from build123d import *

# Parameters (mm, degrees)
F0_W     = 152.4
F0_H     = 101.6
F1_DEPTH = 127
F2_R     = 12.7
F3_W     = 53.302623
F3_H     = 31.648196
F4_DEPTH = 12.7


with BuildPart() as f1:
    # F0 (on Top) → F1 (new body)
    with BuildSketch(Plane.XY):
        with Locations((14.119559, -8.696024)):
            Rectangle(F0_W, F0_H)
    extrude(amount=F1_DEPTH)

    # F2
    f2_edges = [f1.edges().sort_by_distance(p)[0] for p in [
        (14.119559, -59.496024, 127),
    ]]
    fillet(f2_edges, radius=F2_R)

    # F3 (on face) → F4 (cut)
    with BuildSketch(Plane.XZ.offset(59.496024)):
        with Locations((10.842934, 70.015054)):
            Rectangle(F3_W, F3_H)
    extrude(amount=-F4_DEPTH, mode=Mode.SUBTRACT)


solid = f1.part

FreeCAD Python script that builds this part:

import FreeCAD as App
import Part
import Sketcher

V = App.Vector
Q = App.Units.Quantity


def edges_at(feature, points):
    """Names of the edges that pass closest to the given points."""
    edges = feature.Shape.Edges
    near = lambda p: min(range(len(edges)), key=lambda i: edges[i].distToShape(Part.Vertex(*p))[0])
    return sorted({f"Edge{near(p) + 1}" for p in points})


def add_polygon(sketch, points):
    """Adds a closed chain of lines whose ends are joined by coincident constraints."""
    first, n = sketch.GeometryCount, len(points)
    for a, b in zip(points, points[1:] + points[:1]):
        sketch.addGeometry(Part.LineSegment(App.Vector(*a, 0), App.Vector(*b, 0)), False)
    for i in range(n):
        sketch.addConstraint(Sketcher.Constraint("Coincident", first + i, 2, first + (i + 1) % n, 1))

doc = App.newDocument("Part")
params = doc.addObject("Spreadsheet::Sheet", "Params")
for row, (alias, value) in enumerate([
    ("sketch1_width", "6 in"),
    ("sketch1_height", "4 in"),
    ("pad1_length", "5 in"),
    ("fillet_radius", "0.5 in"),
    ("pocket1_length", "0.5 in"),
], start=1):
    params.set(f"A{row}", alias)
    params.set(f"B{row}", "=" + value)
    params.setAlias(f"B{row}", alias)

body = doc.addObject("PartDesign::Body", "Body")

# Sketch on XY plane
sketch1 = doc.addObject("Sketcher::SketchObject", "Sketch")
body.addObject(sketch1)
sketch1.AttachmentSupport = (doc.XY_Plane, [""])
sketch1.MapMode = "FlatFace"
add_polygon(sketch1, [(-62, 42), (-62, -59), (90, -59), (90, 42)])  # lines 0-3
sketch1.addConstraint([
    Sketcher.Constraint("Vertical", 0),
    Sketcher.Constraint("Horizontal", 1),
    Sketcher.Constraint("Vertical", 2),
    Sketcher.Constraint("Horizontal", 3),
    Sketcher.Constraint("DistanceX", 1, 1, 1, 2, Q("6 in")),
    Sketcher.Constraint("DistanceY", 0, 2, 0, 1, Q("4 in")),
    Sketcher.Constraint("DistanceX", 0, 2, -1, 1, Q("62.080441 mm")),
    Sketcher.Constraint("DistanceY", 0, 2, -1, 1, Q("59.496024 mm")),
])
sketch1.setExpression("Constraints[8]", "Params.sketch1_width")
sketch1.setExpression("Constraints[9]", "Params.sketch1_height")
pad1 = doc.addObject("PartDesign::Pad", "Pad")
body.addObject(pad1)
pad1.Profile = sketch1
pad1.setExpression("Length", "Params.pad1_length")
doc.recompute()

fillet = doc.addObject("PartDesign::Fillet", "Fillet")
body.addObject(fillet)
fillet.Base = (pad1, edges_at(pad1, [(14.12, -59.496, 127)]))
fillet.setExpression("Radius", "Params.fillet_radius")

# Sketch on XZ plane
sketch2 = doc.addObject("Sketcher::SketchObject", "Sketch001")
body.addObject(sketch2)
sketch2.AttachmentSupport = (doc.XZ_Plane, [""])
sketch2.MapMode = "FlatFace"
sketch2.AttachmentOffset = App.Placement(V(0, 0, 59.496024), App.Rotation())
add_polygon(sketch2, [(-16, 86), (-16, 54), (37, 54), (37, 86)])  # lines 0-3
sketch2.addConstraint([
    Sketcher.Constraint("Vertical", 0),
    Sketcher.Constraint("Horizontal", 1),
    Sketcher.Constraint("Vertical", 2),
    Sketcher.Constraint("Horizontal", 3),
    Sketcher.Constraint("DistanceX", 1, 1, 1, 2, Q("53.302623 mm")),
    Sketcher.Constraint("DistanceY", 0, 2, 0, 1, Q("31.648196 mm")),
    Sketcher.Constraint("DistanceY", -1, 1, 2, 2, Q("85.839152 mm")),
    Sketcher.Constraint("DistanceX", 0, 2, -1, 1, Q("15.808378 mm")),
])
pocket1 = doc.addObject("PartDesign::Pocket", "Pocket")
body.addObject(pocket1)
pocket1.Profile = sketch2
pocket1.setExpression("Length", "Params.pocket1_length")

doc.recompute()
